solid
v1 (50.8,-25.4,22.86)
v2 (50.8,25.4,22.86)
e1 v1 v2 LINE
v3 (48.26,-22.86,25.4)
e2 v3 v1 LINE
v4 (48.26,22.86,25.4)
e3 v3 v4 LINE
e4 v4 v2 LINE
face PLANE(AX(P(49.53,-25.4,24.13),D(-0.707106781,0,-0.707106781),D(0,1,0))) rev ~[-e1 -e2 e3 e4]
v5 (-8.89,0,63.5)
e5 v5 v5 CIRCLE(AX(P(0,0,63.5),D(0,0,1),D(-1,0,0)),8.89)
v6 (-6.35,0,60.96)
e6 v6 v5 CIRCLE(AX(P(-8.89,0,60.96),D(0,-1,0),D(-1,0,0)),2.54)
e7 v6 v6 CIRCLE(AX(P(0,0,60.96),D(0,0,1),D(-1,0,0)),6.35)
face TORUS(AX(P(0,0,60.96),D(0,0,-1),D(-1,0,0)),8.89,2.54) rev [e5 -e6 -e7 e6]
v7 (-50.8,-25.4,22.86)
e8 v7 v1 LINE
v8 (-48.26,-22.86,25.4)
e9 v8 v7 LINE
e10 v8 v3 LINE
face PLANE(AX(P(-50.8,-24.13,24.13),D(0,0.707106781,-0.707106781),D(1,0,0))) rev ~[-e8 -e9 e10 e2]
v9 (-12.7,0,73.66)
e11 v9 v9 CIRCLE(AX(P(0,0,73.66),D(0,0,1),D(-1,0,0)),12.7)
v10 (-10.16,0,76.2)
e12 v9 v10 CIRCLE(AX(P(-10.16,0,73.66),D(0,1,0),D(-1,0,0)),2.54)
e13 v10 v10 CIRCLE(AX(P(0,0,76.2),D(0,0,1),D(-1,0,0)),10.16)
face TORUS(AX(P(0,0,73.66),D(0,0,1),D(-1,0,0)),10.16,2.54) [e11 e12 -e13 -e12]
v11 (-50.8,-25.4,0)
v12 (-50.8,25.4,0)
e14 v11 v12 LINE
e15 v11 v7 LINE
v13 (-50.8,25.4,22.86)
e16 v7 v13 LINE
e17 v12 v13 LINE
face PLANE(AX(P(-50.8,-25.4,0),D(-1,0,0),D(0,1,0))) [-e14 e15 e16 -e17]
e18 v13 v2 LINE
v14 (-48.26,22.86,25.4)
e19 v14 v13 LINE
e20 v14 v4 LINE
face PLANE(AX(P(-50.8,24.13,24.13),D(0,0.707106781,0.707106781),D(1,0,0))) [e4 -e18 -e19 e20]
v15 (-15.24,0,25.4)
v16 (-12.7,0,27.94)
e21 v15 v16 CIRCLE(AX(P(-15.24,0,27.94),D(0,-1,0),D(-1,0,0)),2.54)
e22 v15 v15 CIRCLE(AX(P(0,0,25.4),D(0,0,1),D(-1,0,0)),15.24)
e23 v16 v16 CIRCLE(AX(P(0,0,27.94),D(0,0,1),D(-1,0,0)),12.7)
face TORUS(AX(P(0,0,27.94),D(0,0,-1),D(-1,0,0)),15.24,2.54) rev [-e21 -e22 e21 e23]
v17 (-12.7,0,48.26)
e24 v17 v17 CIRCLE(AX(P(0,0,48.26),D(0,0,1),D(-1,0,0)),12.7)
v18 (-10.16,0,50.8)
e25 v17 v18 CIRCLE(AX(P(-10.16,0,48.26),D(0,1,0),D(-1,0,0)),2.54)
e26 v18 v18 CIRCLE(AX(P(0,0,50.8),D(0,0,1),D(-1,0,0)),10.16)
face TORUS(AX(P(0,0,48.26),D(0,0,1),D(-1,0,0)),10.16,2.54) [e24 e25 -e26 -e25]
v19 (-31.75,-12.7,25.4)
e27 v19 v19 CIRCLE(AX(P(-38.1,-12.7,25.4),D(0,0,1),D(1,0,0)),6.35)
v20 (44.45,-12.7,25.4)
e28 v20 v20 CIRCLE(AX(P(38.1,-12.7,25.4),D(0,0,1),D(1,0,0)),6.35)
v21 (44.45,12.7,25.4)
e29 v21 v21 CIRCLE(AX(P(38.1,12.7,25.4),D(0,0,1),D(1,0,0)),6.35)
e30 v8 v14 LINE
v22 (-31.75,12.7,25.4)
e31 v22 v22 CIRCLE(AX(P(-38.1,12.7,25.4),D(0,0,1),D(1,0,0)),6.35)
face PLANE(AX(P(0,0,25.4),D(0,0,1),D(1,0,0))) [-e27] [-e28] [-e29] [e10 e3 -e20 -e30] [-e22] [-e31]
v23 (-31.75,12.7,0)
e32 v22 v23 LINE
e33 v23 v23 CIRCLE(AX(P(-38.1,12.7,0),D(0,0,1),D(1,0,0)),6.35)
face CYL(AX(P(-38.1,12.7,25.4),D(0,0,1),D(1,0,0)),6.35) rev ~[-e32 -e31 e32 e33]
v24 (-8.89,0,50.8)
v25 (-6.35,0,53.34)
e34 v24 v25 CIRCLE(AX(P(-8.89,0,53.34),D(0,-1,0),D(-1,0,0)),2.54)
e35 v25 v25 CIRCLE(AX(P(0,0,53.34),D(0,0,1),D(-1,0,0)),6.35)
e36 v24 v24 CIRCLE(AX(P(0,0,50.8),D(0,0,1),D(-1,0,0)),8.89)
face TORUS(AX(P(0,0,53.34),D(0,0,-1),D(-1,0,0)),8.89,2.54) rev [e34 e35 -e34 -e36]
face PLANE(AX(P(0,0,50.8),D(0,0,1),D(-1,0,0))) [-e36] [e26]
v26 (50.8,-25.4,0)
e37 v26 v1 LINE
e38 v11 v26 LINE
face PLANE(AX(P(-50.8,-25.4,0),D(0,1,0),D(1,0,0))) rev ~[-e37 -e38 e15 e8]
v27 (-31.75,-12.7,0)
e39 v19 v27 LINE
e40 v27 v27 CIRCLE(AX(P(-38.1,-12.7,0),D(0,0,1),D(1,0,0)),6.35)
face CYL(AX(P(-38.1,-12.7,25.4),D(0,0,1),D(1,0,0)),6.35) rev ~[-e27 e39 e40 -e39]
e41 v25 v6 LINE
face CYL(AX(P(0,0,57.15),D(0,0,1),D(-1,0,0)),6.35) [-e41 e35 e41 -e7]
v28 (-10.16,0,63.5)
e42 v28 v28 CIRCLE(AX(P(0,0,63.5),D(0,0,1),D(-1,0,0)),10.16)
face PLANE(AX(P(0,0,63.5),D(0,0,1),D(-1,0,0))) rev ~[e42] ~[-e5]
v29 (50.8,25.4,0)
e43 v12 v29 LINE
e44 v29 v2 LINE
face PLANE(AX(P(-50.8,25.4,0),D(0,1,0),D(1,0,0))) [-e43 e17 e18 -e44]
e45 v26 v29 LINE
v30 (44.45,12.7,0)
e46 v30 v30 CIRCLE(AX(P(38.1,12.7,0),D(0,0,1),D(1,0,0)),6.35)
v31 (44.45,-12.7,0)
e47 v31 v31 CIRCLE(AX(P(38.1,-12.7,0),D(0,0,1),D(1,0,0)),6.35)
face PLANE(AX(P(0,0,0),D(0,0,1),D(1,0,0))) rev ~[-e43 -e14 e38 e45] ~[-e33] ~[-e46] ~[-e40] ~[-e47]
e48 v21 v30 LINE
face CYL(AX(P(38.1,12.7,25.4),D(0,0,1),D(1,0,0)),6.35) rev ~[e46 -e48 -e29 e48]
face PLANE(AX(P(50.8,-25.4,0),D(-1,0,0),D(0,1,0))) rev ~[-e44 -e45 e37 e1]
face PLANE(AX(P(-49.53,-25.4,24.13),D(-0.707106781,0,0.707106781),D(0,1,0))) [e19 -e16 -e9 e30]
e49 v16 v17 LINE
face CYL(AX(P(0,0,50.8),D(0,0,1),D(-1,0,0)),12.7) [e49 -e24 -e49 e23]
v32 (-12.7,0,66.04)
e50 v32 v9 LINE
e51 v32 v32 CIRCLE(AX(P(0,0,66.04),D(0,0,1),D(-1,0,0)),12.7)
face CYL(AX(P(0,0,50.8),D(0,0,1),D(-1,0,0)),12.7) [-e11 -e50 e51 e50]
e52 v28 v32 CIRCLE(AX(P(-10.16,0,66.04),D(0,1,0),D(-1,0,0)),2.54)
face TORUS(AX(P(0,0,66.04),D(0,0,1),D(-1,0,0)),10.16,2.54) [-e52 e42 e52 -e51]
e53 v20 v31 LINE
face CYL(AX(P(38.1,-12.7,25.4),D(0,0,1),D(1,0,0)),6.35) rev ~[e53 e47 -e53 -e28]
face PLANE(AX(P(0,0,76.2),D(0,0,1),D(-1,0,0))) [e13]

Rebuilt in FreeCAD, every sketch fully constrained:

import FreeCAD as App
import Part
import Sketcher

V = App.Vector
Q = App.Units.Quantity


def edges_at(feature, points):
    """Names of the edges that pass closest to the given points."""
    edges = feature.Shape.Edges
    near = lambda p: min(range(len(edges)), key=lambda i: edges[i].distToShape(Part.Vertex(*p))[0])
    return sorted({f"Edge{near(p) + 1}" for p in points})

doc = App.newDocument("Part")
body = doc.addObject("PartDesign::Body", "Body")

sketch1 = body.newObject("Sketcher::SketchObject", "Sketch")
sketch1.AttachmentSupport = (doc.getObject("XY_Plane"), [""])
sketch1.MapMode = "FlatFace"
sketch1.addGeometry(Part.LineSegment(V(-51, 25, 0), V(-51, -25, 0)), False)
sketch1.addGeometry(Part.LineSegment(V(-51, -25, 0), V(51, -25, 0)), False)
sketch1.addGeometry(Part.LineSegment(V(51, -25, 0), V(51, 25, 0)), False)
sketch1.addGeometry(Part.LineSegment(V(51, 25, 0), V(-51, 25, 0)), False)
sketch1.addConstraint(Sketcher.Constraint("Coincident", 0, 2, 1, 1))
sketch1.addConstraint(Sketcher.Constraint("Coincident", 1, 2, 2, 1))
sketch1.addConstraint(Sketcher.Constraint("Coincident", 2, 2, 3, 1))
sketch1.addConstraint(Sketcher.Constraint("Coincident", 3, 2, 0, 1))
sketch1.addConstraint(Sketcher.Constraint("Vertical", 0))
sketch1.addConstraint(Sketcher.Constraint("Horizontal", 1))
sketch1.addConstraint(Sketcher.Constraint("Vertical", 2))
sketch1.addConstraint(Sketcher.Constraint("Horizontal", 3))
sketch1.addConstraint(Sketcher.Constraint("Symmetric", 0, 2, 2, 2, -1, 1))
sketch1.addConstraint(Sketcher.Constraint("DistanceX", 1, 1, 1, 2, Q("4 in")))
sketch1.addConstraint(Sketcher.Constraint("DistanceY", 0, 2, 0, 1, Q("2 in")))
pad1 = body.newObject("PartDesign::Pad", "Pad")
pad1.Profile = sketch1
pad1.Length = Q("1 in")

sketch2 = body.newObject("Sketcher::SketchObject", "Sketch001")
sketch2.AttachmentSupport = (doc.getObject("XY_Plane"), [""])
sketch2.MapMode = "FlatFace"
sketch2.AttachmentOffset = App.Placement(V(0, 0, 1 * 25.4), App.Rotation())
sketch2.addGeometry(Part.Circle(V(-38, 13, 0), V(0, 0, 1), 6), False)
sketch2.addGeometry(Part.Circle(V(-38, -13, 0), V(0, 0, 1), 6), False)
sketch2.addGeometry(Part.Circle(V(38, 13, 0), V(0, 0, 1), 6), False)
sketch2.addGeometry(Part.Circle(V(38, -13, 0), V(0, 0, 1), 6), False)
sketch2.addConstraint(Sketcher.Constraint("Equal", 0, 1))
sketch2.addConstraint(Sketcher.Constraint("Equal", 1, 2))
sketch2.addConstraint(Sketcher.Constraint("Equal", 2, 3))
sketch2.addConstraint(Sketcher.Constraint("Symmetric", 1, 3, 2, 3, -1, 1))
sketch2.addConstraint(Sketcher.Constraint("Symmetric", 0, 3, 3, 3, -1, 1))
sketch2.addConstraint(Sketcher.Constraint("Symmetric", 0, 3, 2, 3, -2))
sketch2.addConstraint(Sketcher.Constraint("Diameter", 0, Q("0.5 in")))
sketch2.addConstraint(Sketcher.Constraint("DistanceY", 1, 3, 0, 3, Q("1 in")))
sketch2.addConstraint(Sketcher.Constraint("DistanceX", 0, 3, 2, 3, Q("3 in")))
pocket1 = body.newObject("PartDesign::Pocket", "Pocket")
pocket1.Profile = sketch2
pocket1.Type = "ThroughAll"

sketch3 = body.newObject("Sketcher::SketchObject", "Sketch002")
sketch3.AttachmentSupport = (doc.getObject("XZ_Plane"), [""])
sketch3.MapMode = "FlatFace"
sketch3.addGeometry(Part.LineSegment(V(-13, 76, 0), V(-13, 25, 0)), False)
sketch3.addGeometry(Part.LineSegment(V(-13, 25, 0), V(0, 25, 0)), False)
sketch3.addGeometry(Part.LineSegment(V(0, 25, 0), V(0, 76, 0)), False)
sketch3.addGeometry(Part.LineSegment(V(0, 76, 0), V(-13, 76, 0)), False)
sketch3.addConstraint(Sketcher.Constraint("Coincident", 0, 2, 1, 1))
sketch3.addConstraint(Sketcher.Constraint("Coincident", 1, 2, 2, 1))
sketch3.addConstraint(Sketcher.Constraint("Coincident", 2, 2, 3, 1))
sketch3.addConstraint(Sketcher.Constraint("Coincident", 3, 2, 0, 1))
sketch3.addConstraint(Sketcher.Constraint("Vertical", 0))
sketch3.addConstraint(Sketcher.Constraint("Horizontal", 1))
sketch3.addConstraint(Sketcher.Constraint("Vertical", 2))
sketch3.addConstraint(Sketcher.Constraint("Horizontal", 3))
sketch3.addConstraint(Sketcher.Constraint("PointOnObject", 1, 2, -2))
sketch3.addConstraint(Sketcher.Constraint("DistanceY", 0, 2, 0, 1, Q("2 in")))
sketch3.addConstraint(Sketcher.Constraint("DistanceX", 1, 1, 1, 2, Q("0.5 in")))
sketch3.addConstraint(Sketcher.Constraint("DistanceY", -1, 1, 0, 2, Q("1 in")))
revolution = body.newObject("PartDesign::Revolution", "Revolution")
revolution.Profile = sketch3
revolution.ReferenceAxis = (sketch3, ["V_Axis"])
revolution.Angle = 360

sketch4 = body.newObject("Sketcher::SketchObject", "Sketch003")
sketch4.AttachmentSupport = (doc.getObject("XZ_Plane"), [""])
sketch4.MapMode = "FlatFace"
sketch4.addGeometry(Part.LineSegment(V(-20, 64, 0), V(-20, 51, 0)), False)
sketch4.addGeometry(Part.LineSegment(V(-20, 51, 0), V(-6, 51, 0)), False)
sketch4.addGeometry(Part.LineSegment(V(-6, 51, 0), V(-6, 64, 0)), False)
sketch4.addGeometry(Part.LineSegment(V(-6, 64, 0), V(-20, 64, 0)), False)
sketch4.addConstraint(Sketcher.Constraint("Coincident", 0, 2, 1, 1))
sketch4.addConstraint(Sketcher.Constraint("Coincident", 1, 2, 2, 1))
sketch4.addConstraint(Sketcher.Constraint("Coincident", 2, 2, 3, 1))
sketch4.addConstraint(Sketcher.Constraint("Coincident", 3, 2, 0, 1))
sketch4.addConstraint(Sketcher.Constraint("Vertical", 0))
sketch4.addConstraint(Sketcher.Constraint("Horizontal", 1))
sketch4.addConstraint(Sketcher.Constraint("Vertical", 2))
sketch4.addConstraint(Sketcher.Constraint("Horizontal", 3))
sketch4.addConstraint(Sketcher.Constraint("DistanceY", 0, 2, 0, 1, Q("0.5 in")))
sketch4.addConstraint(Sketcher.Constraint("DistanceY", -1, 1, 0, 2, Q("2 in")))
sketch4.addConstraint(Sketcher.Constraint("DistanceX", 1, 2, -1, 1, Q("0.25 in")))
sketch4.addConstraint(Sketcher.Constraint("DistanceX", 1, 1, 1, 2, 14.076515))
groove = body.newObject("PartDesign::Groove", "Groove")
groove.Profile = sketch4
groove.ReferenceAxis = (sketch4, ["V_Axis"])
groove.Angle = 360
doc.recompute()

fillet = body.newObject("PartDesign::Fillet", "Fillet")
fillet.Base = (groove, edges_at(groove, [
    (12.7, 0, 50.8),
    (6.35, 0, 50.8),
    (12.7, 0, 76.2),
    (12.7, 0, 63.5),
    (6.35, 0, 63.5),
    (12.7, 0, 25.4),
]))
fillet.Radius = Q("0.1 in")
doc.recompute()

chamfer = body.newObject("PartDesign::Chamfer", "Chamfer")
chamfer.Base = (fillet, edges_at(fillet, [
    (0, -25.4, 25.4),
    (-50.8, 0, 25.4),
    (0, 25.4, 25.4),
    (50.8, 0, 25.4),
]))
chamfer.Size = Q("0.1 in")

doc.recompute()
